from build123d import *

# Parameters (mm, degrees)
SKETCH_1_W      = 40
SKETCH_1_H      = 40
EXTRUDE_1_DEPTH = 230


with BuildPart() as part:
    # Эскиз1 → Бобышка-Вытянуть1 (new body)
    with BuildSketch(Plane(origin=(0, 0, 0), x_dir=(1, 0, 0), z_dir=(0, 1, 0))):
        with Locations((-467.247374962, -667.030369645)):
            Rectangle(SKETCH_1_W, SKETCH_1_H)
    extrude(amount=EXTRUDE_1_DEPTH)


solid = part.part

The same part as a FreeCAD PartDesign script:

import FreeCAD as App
import Part
import Sketcher

V = App.Vector

doc = App.newDocument("Part")
body = doc.addObject("PartDesign::Body", "Body")

# Sketch on XZ plane
sketch1 = body.newObject("Sketcher::SketchObject", "Sketch")
sketch1.AttachmentSupport = (doc.getObject("XZ_Plane"), [""])
sketch1.MapMode = "FlatFace"
sketch1.addGeometry([
    Part.LineSegment(V(-487, 647, 0), V(-487, 687, 0)),
    Part.LineSegment(V(-487, 687, 0), V(-447, 687, 0)),
    Part.LineSegment(V(-447, 687, 0), V(-447, 647, 0)),
    Part.LineSegment(V(-447, 647, 0), V(-487, 647, 0)),
], False)
sketch1.addConstraint([
    Sketcher.Constraint("Coincident", 0, 2, 1, 1),
    Sketcher.Constraint("Coincident", 1, 2, 2, 1),
    Sketcher.Constraint("Coincident", 2, 2, 3, 1),
    Sketcher.Constraint("Coincident", 3, 2, 0, 1),
    Sketcher.Constraint("Vertical", 0),
    Sketcher.Constraint("Horizontal", 1),
    Sketcher.Constraint("Vertical", 2),
    Sketcher.Constraint("Horizontal", 3),
    Sketcher.Constraint("Equal", 3, 0),
    Sketcher.Constraint("DistanceX", 1, 1, 1, 2, 40.0),
    Sketcher.Constraint("DistanceY", -1, 1, 0, 2, 687.03037),
    Sketcher.Constraint("DistanceX", 0, 2, -1, 1, 487.247375),
])
pad1 = body.newObject("PartDesign::Pad", "Pad")
pad1.Profile = sketch1
pad1.Length = 230
pad1.Reversed = True

doc.recompute()
